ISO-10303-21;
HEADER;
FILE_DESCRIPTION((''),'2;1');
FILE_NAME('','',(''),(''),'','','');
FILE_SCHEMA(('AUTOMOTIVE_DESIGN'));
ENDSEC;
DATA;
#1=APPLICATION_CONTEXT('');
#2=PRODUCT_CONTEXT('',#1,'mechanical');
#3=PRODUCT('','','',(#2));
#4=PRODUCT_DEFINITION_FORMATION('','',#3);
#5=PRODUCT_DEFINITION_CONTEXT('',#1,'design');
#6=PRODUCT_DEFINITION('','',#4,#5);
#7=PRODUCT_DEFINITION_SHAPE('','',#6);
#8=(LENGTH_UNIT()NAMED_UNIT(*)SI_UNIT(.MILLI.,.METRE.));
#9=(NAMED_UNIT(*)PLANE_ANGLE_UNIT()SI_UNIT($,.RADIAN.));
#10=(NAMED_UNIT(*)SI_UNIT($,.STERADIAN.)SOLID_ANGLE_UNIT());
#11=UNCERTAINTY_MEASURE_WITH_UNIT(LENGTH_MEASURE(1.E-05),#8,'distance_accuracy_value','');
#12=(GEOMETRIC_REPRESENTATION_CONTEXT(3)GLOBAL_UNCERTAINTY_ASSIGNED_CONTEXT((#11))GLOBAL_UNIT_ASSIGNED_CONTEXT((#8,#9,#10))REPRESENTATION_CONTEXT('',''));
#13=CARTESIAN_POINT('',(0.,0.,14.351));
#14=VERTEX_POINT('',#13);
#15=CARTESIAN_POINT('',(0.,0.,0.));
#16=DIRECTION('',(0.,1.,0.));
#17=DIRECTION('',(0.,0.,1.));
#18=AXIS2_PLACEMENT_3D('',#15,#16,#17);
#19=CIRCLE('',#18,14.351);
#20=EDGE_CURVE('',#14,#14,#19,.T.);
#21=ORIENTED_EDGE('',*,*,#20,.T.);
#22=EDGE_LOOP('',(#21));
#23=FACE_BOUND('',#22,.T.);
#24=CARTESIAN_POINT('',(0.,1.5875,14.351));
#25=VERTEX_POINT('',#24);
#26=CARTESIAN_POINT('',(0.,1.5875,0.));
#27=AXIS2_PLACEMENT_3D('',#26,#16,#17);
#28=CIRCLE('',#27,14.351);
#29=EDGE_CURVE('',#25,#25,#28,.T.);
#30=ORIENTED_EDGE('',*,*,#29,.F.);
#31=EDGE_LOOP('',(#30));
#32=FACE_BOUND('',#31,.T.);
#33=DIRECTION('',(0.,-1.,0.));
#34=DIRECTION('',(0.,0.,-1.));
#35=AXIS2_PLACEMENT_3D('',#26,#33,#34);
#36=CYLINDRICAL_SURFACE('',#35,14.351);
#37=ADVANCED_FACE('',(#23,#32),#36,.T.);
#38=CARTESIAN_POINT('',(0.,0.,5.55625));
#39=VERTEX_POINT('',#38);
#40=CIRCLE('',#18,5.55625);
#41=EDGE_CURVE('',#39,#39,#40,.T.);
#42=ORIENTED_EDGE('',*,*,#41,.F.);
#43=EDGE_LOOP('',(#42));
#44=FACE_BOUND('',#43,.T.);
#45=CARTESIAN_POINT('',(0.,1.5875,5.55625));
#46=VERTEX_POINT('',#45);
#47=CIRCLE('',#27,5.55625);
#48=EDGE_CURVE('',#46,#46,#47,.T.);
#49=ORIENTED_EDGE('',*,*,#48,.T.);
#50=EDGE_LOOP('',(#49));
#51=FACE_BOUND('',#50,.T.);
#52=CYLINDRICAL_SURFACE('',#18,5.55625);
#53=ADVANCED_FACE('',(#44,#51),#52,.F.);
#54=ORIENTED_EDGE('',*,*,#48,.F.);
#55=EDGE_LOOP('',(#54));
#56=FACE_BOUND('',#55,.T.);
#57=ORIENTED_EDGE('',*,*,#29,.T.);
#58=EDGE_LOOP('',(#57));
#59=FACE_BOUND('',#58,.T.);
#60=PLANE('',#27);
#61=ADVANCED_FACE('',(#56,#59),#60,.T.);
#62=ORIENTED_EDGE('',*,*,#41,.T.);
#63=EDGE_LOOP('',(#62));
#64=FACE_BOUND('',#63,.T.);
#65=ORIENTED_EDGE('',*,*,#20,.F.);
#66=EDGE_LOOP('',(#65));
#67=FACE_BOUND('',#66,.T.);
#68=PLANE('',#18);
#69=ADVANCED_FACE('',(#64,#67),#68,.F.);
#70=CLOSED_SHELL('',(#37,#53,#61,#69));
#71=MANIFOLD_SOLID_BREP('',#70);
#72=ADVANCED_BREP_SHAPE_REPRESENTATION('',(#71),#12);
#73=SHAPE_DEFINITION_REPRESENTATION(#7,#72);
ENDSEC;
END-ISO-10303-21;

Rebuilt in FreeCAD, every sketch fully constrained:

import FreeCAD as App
import Part
import Sketcher

V = App.Vector
Q = App.Units.Quantity

doc = App.newDocument("Part")
body = doc.addObject("PartDesign::Body", "Body")

# Sketch on XZ plane
sketch1 = body.newObject("Sketcher::SketchObject", "Sketch")
sketch1.AttachmentSupport = (doc.getObject("XZ_Plane"), [""])
sketch1.MapMode = "FlatFace"
sketch1.addGeometry(Part.Circle(V(0, 0, 0), V(0, 0, 1), 14), False)
sketch1.addConstraint([
    Sketcher.Constraint("Coincident", 0, 3, -1, 1),
    Sketcher.Constraint("Diameter", 0, Q("1.13 in")),
])
pad1 = body.newObject("PartDesign::Pad", "Pad")
pad1.Profile = sketch1
pad1.Length = Q("0.0625 in")
pad1.Reversed = True

# Sketch on XZ plane
sketch2 = body.newObject("Sketcher::SketchObject", "Sketch001")
sketch2.AttachmentSupport = (doc.getObject("XZ_Plane"), [""])
sketch2.MapMode = "FlatFace"
sketch2.AttachmentOffset = App.Placement(V(0, 0, -0.0625 * 25.4), App.Rotation())
sketch2.addGeometry(Part.Circle(V(0, 0, 0), V(0, 0, 1), 6), False)
sketch2.addConstraint([
    Sketcher.Constraint("Coincident", 0, 3, -1, 1),
    Sketcher.Constraint("Diameter", 0, Q("0.4375 in")),
])
pocket1 = body.newObject("PartDesign::Pocket", "Pocket")
pocket1.Profile = sketch2
pocket1.Type = "ThroughAll"
pocket1.Reversed = True

doc.recompute()
